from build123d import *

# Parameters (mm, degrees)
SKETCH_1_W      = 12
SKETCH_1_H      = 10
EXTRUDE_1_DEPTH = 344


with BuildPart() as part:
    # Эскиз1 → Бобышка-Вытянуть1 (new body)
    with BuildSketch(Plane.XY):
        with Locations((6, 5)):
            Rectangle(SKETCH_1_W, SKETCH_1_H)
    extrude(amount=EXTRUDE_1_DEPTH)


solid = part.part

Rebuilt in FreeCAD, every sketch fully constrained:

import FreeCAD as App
import Part
import Sketcher
from FreeCAD import Vector
Q = App.Units.Quantity


def add_polygon(sketch, points):
    """Adds a closed chain of lines whose ends are joined by coincident constraints."""
    first, n = sketch.GeometryCount, len(points)
    for a, b in zip(points, points[1:] + points[:1]):
        sketch.addGeometry(Part.LineSegment(App.Vector(*a, 0), App.Vector(*b, 0)), False)
    for i in range(n):
        sketch.addConstraint(Sketcher.Constraint("Coincident", first + i, 2, first + (i + 1) % n, 1))

doc = App.newDocument("Part")
params = doc.addObject("Spreadsheet::Sheet", "Params")
for row, (alias, value) in enumerate([
    ("sketch1_width", "12 mm"),
    ("sketch1_height", "10 mm"),
    ("pad1_length", "344 mm"),
], start=1):
    params.set(f"A{row}", alias)
    params.set(f"B{row}", "=" + value)
    params.setAlias(f"B{row}", alias)

body = doc.addObject("PartDesign::Body", "Body")

# Sketch on XY plane
sketch1 = body.newObject("Sketcher::SketchObject", "Sketch")
sketch1.AttachmentSupport = (doc.getObject("XY_Plane"), [""])
sketch1.MapMode = "FlatFace"
add_polygon(sketch1, [(0, 10), (0, 0), (12, 0), (12, 10)])  # lines 0-3
sketch1.addConstraint(Sketcher.Constraint("Vertical", 0))
sketch1.addConstraint(Sketcher.Constraint("Horizontal", 1))
sketch1.addConstraint(Sketcher.Constraint("Vertical", 2))
sketch1.addConstraint(Sketcher.Constraint("Horizontal", 3))
sketch1.addConstraint(Sketcher.Constraint("Coincident", 0, 2, -1, 1))
sketch1.addConstraint(Sketcher.Constraint("DistanceX", 1, 1, 1, 2, Q("12 mm")))
sketch1.addConstraint(Sketcher.Constraint("DistanceY", 0, 2, 0, 1, Q("10 mm")))
sketch1.setExpression("Constraints[9]", "Params.sketch1_width")
sketch1.setExpression("Constraints[10]", "Params.sketch1_height")
pad1 = body.newObject("PartDesign::Pad", "Pad")
pad1.Profile = sketch1
pad1.setExpression("Length", "Params.pad1_length")

doc.recompute()
